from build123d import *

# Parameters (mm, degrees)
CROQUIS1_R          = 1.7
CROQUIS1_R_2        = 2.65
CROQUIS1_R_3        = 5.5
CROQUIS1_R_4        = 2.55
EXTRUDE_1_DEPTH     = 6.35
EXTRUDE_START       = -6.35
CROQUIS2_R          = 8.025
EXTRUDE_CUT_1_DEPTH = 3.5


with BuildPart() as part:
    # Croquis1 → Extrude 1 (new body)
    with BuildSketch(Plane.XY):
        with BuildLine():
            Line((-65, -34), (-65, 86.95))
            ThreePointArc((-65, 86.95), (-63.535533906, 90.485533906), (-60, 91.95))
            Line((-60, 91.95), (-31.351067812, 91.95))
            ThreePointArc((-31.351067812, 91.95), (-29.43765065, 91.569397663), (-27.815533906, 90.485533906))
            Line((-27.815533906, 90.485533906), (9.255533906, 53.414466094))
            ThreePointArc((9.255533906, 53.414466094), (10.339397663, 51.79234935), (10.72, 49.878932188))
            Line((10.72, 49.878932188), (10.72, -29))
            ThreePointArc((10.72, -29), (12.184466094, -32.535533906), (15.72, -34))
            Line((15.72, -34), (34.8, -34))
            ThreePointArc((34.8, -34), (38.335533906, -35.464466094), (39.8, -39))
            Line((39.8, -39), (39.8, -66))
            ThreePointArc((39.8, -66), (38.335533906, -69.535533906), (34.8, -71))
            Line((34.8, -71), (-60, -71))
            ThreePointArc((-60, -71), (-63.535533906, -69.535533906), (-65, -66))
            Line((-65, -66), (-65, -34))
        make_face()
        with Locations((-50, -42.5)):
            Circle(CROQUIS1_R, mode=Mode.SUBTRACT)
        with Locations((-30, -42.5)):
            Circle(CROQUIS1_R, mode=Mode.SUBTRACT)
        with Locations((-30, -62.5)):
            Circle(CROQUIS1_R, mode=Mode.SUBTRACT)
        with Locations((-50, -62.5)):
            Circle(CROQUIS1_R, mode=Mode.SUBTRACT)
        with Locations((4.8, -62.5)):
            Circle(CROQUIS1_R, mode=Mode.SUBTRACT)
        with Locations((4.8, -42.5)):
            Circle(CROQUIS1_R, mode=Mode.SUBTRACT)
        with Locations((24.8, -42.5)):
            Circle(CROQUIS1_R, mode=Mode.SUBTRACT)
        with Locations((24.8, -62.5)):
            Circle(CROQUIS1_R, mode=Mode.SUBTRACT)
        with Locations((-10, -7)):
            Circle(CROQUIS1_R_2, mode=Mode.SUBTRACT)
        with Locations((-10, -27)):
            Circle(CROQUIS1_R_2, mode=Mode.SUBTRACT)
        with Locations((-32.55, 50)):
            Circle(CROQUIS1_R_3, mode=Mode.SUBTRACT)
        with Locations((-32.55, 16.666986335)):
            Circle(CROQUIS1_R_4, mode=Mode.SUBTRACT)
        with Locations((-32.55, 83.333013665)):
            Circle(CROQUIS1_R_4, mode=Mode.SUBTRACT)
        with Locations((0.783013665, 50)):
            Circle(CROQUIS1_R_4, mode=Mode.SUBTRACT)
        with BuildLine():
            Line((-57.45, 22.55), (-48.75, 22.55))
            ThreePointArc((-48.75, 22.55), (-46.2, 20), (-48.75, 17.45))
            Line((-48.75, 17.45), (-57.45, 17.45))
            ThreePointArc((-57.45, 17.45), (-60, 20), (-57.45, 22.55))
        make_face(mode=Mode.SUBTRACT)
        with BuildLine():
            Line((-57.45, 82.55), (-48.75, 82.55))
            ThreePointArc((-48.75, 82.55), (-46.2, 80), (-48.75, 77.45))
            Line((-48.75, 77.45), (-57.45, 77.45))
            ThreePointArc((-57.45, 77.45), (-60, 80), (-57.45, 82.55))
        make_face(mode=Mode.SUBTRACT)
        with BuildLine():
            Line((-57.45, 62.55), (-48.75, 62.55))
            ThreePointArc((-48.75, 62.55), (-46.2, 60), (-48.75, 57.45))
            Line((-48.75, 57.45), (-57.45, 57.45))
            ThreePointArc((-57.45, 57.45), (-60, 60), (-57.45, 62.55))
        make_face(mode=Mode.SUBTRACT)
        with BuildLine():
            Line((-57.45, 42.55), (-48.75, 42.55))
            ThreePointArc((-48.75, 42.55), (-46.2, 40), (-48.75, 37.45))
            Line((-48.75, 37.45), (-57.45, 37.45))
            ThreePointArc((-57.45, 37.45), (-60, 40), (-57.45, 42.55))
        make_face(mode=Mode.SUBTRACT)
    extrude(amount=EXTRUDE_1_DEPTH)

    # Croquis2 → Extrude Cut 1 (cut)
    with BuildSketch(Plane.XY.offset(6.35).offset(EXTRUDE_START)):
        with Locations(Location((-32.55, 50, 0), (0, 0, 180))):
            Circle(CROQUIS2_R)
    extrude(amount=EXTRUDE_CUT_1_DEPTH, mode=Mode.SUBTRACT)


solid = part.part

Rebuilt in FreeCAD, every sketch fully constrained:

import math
import FreeCAD as App
import Part
import Sketcher
Q = App.Units.Quantity

doc = App.newDocument("Part")
body = doc.addObject("PartDesign::Body", "Body")

sketch1 = body.newObject("Sketcher::SketchObject", "Sketch")
sketch1.AttachmentSupport = (doc.getObject("XY_Plane"), [""])
sketch1.MapMode = "FlatFace"
sketch1.addGeometry([
    Part.ArcOfCircle(Part.Circle(App.Vector(-60, 86.95, 0), App.Vector(0, 0, 1), 5), math.radians(90), math.radians(180)),
    Part.LineSegment(App.Vector(-65, 86.95, 0), App.Vector(-65, -66, 0)),
    Part.ArcOfCircle(Part.Circle(App.Vector(-60, -66, 0), App.Vector(0, 0, 1), 5), math.radians(180), math.radians(270)),
    Part.LineSegment(App.Vector(-60, -71, 0), App.Vector(34.8, -71, 0)),
    Part.ArcOfCircle(Part.Circle(App.Vector(34.8, -66, 0), App.Vector(0, 0, 1), 5), math.radians(-90), math.radians(0)),
    Part.LineSegment(App.Vector(39.8, -66, 0), App.Vector(39.8, -39, 0)),
    Part.ArcOfCircle(Part.Circle(App.Vector(34.8, -39, 0), App.Vector(0, 0, 1), 5), math.radians(0), math.radians(90)),
    Part.LineSegment(App.Vector(34.8, -34, 0), App.Vector(15.72, -34, 0)),
    Part.ArcOfCircle(Part.Circle(App.Vector(15.72, -29, 0), App.Vector(0, 0, 1), 5), math.radians(180), math.radians(270)),
    Part.LineSegment(App.Vector(10.72, -29, 0), App.Vector(10.72, 49.878932, 0)),
    Part.ArcOfCircle(Part.Circle(App.Vector(5.72, 49.878932, 0), App.Vector(0, 0, 1), 5), math.radians(0), math.radians(45)),
    Part.LineSegment(App.Vector(9.255534, 53.414466, 0), App.Vector(-27.815534, 90.485534, 0)),
    Part.ArcOfCircle(Part.Circle(App.Vector(-31.351068, 86.95, 0), App.Vector(0, 0, 1), 5), math.radians(45), math.radians(90)),
    Part.LineSegment(App.Vector(-31.351068, 91.95, 0), App.Vector(-60, 91.95, 0)),
    Part.Circle(App.Vector(24.8, -62.5, 0), App.Vector(0, 0, 1), 1.7),
    Part.Circle(App.Vector(24.8, -42.5, 0), App.Vector(0, 0, 1), 1.7),
    Part.Circle(App.Vector(4.8, -62.5, 0), App.Vector(0, 0, 1), 1.7),
    Part.Circle(App.Vector(4.8, -42.5, 0), App.Vector(0, 0, 1), 1.7),
    Part.Circle(App.Vector(-10, -27, 0), App.Vector(0, 0, 1), 2.65),
    Part.Circle(App.Vector(-10, -7, 0), App.Vector(0, 0, 1), 2.65),
    Part.Circle(App.Vector(-30, -62.5, 0), App.Vector(0, 0, 1), 1.7),
    Part.Circle(App.Vector(-30, -42.5, 0), App.Vector(0, 0, 1), 1.7),
    Part.Circle(App.Vector(-50, -62.5, 0), App.Vector(0, 0, 1), 1.7),
    Part.Circle(App.Vector(-50, -42.5, 0), App.Vector(0, 0, 1), 1.7),
    Part.Circle(App.Vector(0.783014, 50, 0), App.Vector(0, 0, 1), 2.55),
    Part.Circle(App.Vector(-32.55, 16.666986, 0), App.Vector(0, 0, 1), 2.55),
    Part.LineSegment(App.Vector(-57.45, 22.55, 0), App.Vector(-48.75, 22.55, 0)),
    Part.ArcOfCircle(Part.Circle(App.Vector(-48.75, 20, 0), App.Vector(0, 0, 1), 2.55), math.radians(-90), math.radians(90)),
    Part.LineSegment(App.Vector(-48.75, 17.45, 0), App.Vector(-57.45, 17.45, 0)),
    Part.ArcOfCircle(Part.Circle(App.Vector(-57.45, 20, 0), App.Vector(0, 0, 1), 2.55), math.radians(90), math.radians(270)),
    Part.LineSegment(App.Vector(-57.45, 42.55, 0), App.Vector(-48.75, 42.55, 0)),
    Part.ArcOfCircle(Part.Circle(App.Vector(-48.75, 40, 0), App.Vector(0, 0, 1), 2.55), math.radians(-90), math.radians(90)),
    Part.LineSegment(App.Vector(-48.75, 37.45, 0), App.Vector(-57.45, 37.45, 0)),
    Part.ArcOfCircle(Part.Circle(App.Vector(-57.45, 40, 0), App.Vector(0, 0, 1), 2.55), math.radians(90), math.radians(270)),
    Part.Circle(App.Vector(-32.55, 50, 0), App.Vector(0, 0, 1), 5.5),
    Part.Circle(App.Vector(-32.55, 83.333014, 0), App.Vector(0, 0, 1), 2.55),
    Part.LineSegment(App.Vector(-57.45, 62.55, 0), App.Vector(-48.75, 62.55, 0)),
    Part.ArcOfCircle(Part.Circle(App.Vector(-48.75, 60, 0), App.Vector(0, 0, 1), 2.55), math.radians(-90), math.radians(90)),
    Part.LineSegment(App.Vector(-48.75, 57.45, 0), App.Vector(-57.45, 57.45, 0)),
    Part.ArcOfCircle(Part.Circle(App.Vector(-57.45, 60, 0), App.Vector(0, 0, 1), 2.55), math.radians(90), math.radians(270)),
    Part.LineSegment(App.Vector(-57.45, 82.55, 0), App.Vector(-48.75, 82.55, 0)),
    Part.ArcOfCircle(Part.Circle(App.Vector(-48.75, 80, 0), App.Vector(0, 0, 1), 2.55), math.radians(-90), math.radians(90)),
    Part.LineSegment(App.Vector(-48.75, 77.45, 0), App.Vector(-57.45, 77.45, 0)),
    Part.ArcOfCircle(Part.Circle(App.Vector(-57.45, 80, 0), App.Vector(0, 0, 1), 2.55), math.radians(90), math.radians(270)),
], False)
sketch1.addConstraint([
    Sketcher.Constraint("Tangent", 0, 2, 1, 1),
    Sketcher.Constraint("Tangent", 1, 2, 2, 1),
    Sketcher.Constraint("Tangent", 2, 2, 3, 1),
    Sketcher.Constraint("Tangent", 3, 2, 4, 1),
    Sketcher.Constraint("Tangent", 4, 2, 5, 1),
    Sketcher.Constraint("Tangent", 5, 2, 6, 1),
    Sketcher.Constraint("Tangent", 6, 2, 7, 1),
    Sketcher.Constraint("Tangent", 7, 2, 8, 2),
    Sketcher.Constraint("Tangent", 8, 1, 9, 1),
    Sketcher.Constraint("Tangent", 9, 2, 10, 1),
    Sketcher.Constraint("Tangent", 10, 2, 11, 1),
    Sketcher.Constraint("Tangent", 11, 2, 12, 1),
    Sketcher.Constraint("Tangent", 12, 2, 13, 1),
    Sketcher.Constraint("Tangent", 13, 2, 0, 1),
    Sketcher.Constraint("Tangent", 26, 2, 27, 2),
    Sketcher.Constraint("Tangent", 27, 1, 28, 1),
    Sketcher.Constraint("Tangent", 28, 2, 29, 2),
    Sketcher.Constraint("Tangent", 29, 1, 26, 1),
    Sketcher.Constraint("Tangent", 30, 2, 31, 2),
    Sketcher.Constraint("Tangent", 31, 1, 32, 1),
    Sketcher.Constraint("Tangent", 32, 2, 33, 2),
    Sketcher.Constraint("Tangent", 33, 1, 30, 1),
    Sketcher.Constraint("Tangent", 36, 2, 37, 2),
    Sketcher.Constraint("Tangent", 37, 1, 38, 1),
    Sketcher.Constraint("Tangent", 38, 2, 39, 2),
    Sketcher.Constraint("Tangent", 39, 1, 36, 1),
    Sketcher.Constraint("Tangent", 40, 2, 41, 2),
    Sketcher.Constraint("Tangent", 41, 1, 42, 1),
    Sketcher.Constraint("Tangent", 42, 2, 43, 2),
    Sketcher.Constraint("Tangent", 43, 1, 40, 1),
    Sketcher.Constraint("Vertical", 1),
    Sketcher.Constraint("Horizontal", 3),
    Sketcher.Constraint("Vertical", 5),
    Sketcher.Constraint("Horizontal", 7),
    Sketcher.Constraint("Vertical", 9),
    Sketcher.Constraint("Horizontal", 13),
    Sketcher.Constraint("Horizontal", 26),
    Sketcher.Constraint("Horizontal", 28),
    Sketcher.Constraint("Horizontal", 30),
    Sketcher.Constraint("Horizontal", 32),
    Sketcher.Constraint("Horizontal", 36),
    Sketcher.Constraint("Horizontal", 38),
    Sketcher.Constraint("Horizontal", 40),
    Sketcher.Constraint("Horizontal", 42),
    Sketcher.Constraint("Equal", 0, 2),
    Sketcher.Constraint("Equal", 2, 4),
    Sketcher.Constraint("Equal", 4, 6),
    Sketcher.Constraint("Equal", 6, 8),
    Sketcher.Constraint("Equal", 8, 10),
    Sketcher.Constraint("Equal", 10, 12),
    Sketcher.Constraint("Equal", 14, 15),
    Sketcher.Constraint("Equal", 15, 16),
    Sketcher.Constraint("Equal", 16, 17),
    Sketcher.Constraint("Equal", 18, 19),
    Sketcher.Constraint("Equal", 17, 20),
    Sketcher.Constraint("Equal", 20, 21),
    Sketcher.Constraint("Equal", 21, 22),
    Sketcher.Constraint("Equal", 22, 23),
    Sketcher.Constraint("Equal", 24, 25),
    Sketcher.Constraint("Equal", 25, 27),
    Sketcher.Constraint("Equal", 29, 31),
    Sketcher.Constraint("Equal", 33, 35),
    Sketcher.Constraint("Equal", 35, 37),
    Sketcher.Constraint("Equal", 39, 41),
    Sketcher.Constraint("Horizontal", 14, 3, 16, 3),
    Sketcher.Constraint("Horizontal", 15, 3, 17, 3),
    Sketcher.Constraint("Horizontal", 16, 3, 20, 3),
    Sketcher.Constraint("Horizontal", 17, 3, 21, 3),
    Sketcher.Constraint("Horizontal", 20, 3, 22, 3),
    Sketcher.Constraint("Horizontal", 21, 3, 23, 3),
    Sketcher.Constraint("Horizontal", 24, 3, 34, 3),
    Sketcher.Constraint("Vertical", 14, 3, 15, 3),
    Sketcher.Constraint("Vertical", 16, 3, 17, 3),
    Sketcher.Constraint("Vertical", 18, 3, 19, 3),
    Sketcher.Constraint("Vertical", 20, 3, 21, 3),
    Sketcher.Constraint("Vertical", 22, 3, 23, 3),
    Sketcher.Constraint("Vertical", 27, 3, 31, 3),
    Sketcher.Constraint("Vertical", 29, 3, 33, 3),
    Sketcher.Constraint("Vertical", 25, 3, 34, 3),
    Sketcher.Constraint("Vertical", 34, 3, 35, 3),
    Sketcher.Constraint("Vertical", 31, 3, 37, 3),
    Sketcher.Constraint("Vertical", 33, 3, 39, 3),
    Sketcher.Constraint("Vertical", 37, 3, 41, 3),
    Sketcher.Constraint("Vertical", 39, 3, 43, 3),
    Sketcher.Constraint("Diameter", 34, 11.0),
    Sketcher.Constraint("Radius", 0, 5.0),
    Sketcher.Constraint("Diameter", 14, 3.4),
    Sketcher.Constraint("Diameter", 18, 5.3),
    Sketcher.Constraint("Diameter", 24, 5.1),
    Sketcher.Constraint("DistanceY", 5, 1, 5, 2, 27.0),
    Sketcher.Constraint("Angle", 11, Q("135 deg")),
    Sketcher.Constraint("DistanceX", 3, 1, 3, 2, 94.8),
    Sketcher.Constraint("DistanceX", 26, 1, 26, 2, 8.7),
    Sketcher.Constraint("DistanceX", 0, 3, -1, 1, 60.0),
    Sketcher.Constraint("DistanceY", 2, 3, -1, 1, 66.0),
    Sketcher.Constraint("DistanceX", 18, 3, -1, 1, 10.0),
    Sketcher.Constraint("DistanceY", 18, 3, -1, 1, 27.0),
    Sketcher.Constraint("DistanceY", 19, 3, -1, 1, 7.0),
    Sketcher.Constraint("DistanceX", 20, 3, -1, 1, 30.0),
    Sketcher.Constraint("DistanceX", 22, 3, -1, 1, 50.0),
    Sketcher.Constraint("DistanceY", -1, 1, 24, 3, 50.0),
    Sketcher.Constraint("DistanceY", -1, 1, 27, 3, 20.0),
    Sketcher.Constraint("DistanceY", -1, 1, 31, 3, 40.0),
    Sketcher.Constraint("DistanceY", -1, 1, 37, 3, 60.0),
    Sketcher.Constraint("DistanceY", -1, 1, 41, 3, 80.0),
    Sketcher.Constraint("DistanceX", 14, 3, 4, 3, 10.0),
    Sketcher.Constraint("DistanceY", 14, 3, 15, 3, 20.0),
    Sketcher.Constraint("DistanceX", 16, 3, 14, 3, 20.0),
    Sketcher.Constraint("DistanceX", 7, 2, 7, 1, 19.08),
    Sketcher.Constraint("DistanceY", 1, 2, 1, 1, 152.95),
    Sketcher.Constraint("DistanceY", 14, 3, -1, 1, 62.5),
    Sketcher.Constraint("DistanceX", 27, 3, 25, 3, 16.2),
    Sketcher.Constraint("DistanceX", 25, 3, -1, 1, 32.55),
    Sketcher.Constraint("DistanceX", 13, 2, 13, 1, 28.648932),
    Sketcher.Constraint("DistanceX", 12, 3, 24, 3, 32.134081),
    Sketcher.Constraint("DistanceY", 9, 2, 35, 3, 33.454081),
    Sketcher.Constraint("DistanceY", -1, 1, 25, 3, 16.666986),
])
pad1 = body.newObject("PartDesign::Pad", "Pad")
pad1.Profile = sketch1
pad1.Length = 6.35

sketch2 = body.newObject("Sketcher::SketchObject", "Sketch001")
sketch2.AttachmentSupport = (doc.getObject("XY_Plane"), [""])
sketch2.MapMode = "FlatFace"
sketch2.addGeometry(Part.Circle(App.Vector(-32.55, 50, 0), App.Vector(0, 0, 1), 8.025), False)
sketch2.addConstraint([
    Sketcher.Constraint("Diameter", 0, 16.05),
    Sketcher.Constraint("DistanceY", -1, 1, 0, 3, 50.0),
    Sketcher.Constraint("DistanceX", 0, 3, -1, 1, 32.55),
])
pocket1 = body.newObject("PartDesign::Pocket", "Pocket")
pocket1.Profile = sketch2
pocket1.Length = 3.5
pocket1.Reversed = True

doc.recompute()
